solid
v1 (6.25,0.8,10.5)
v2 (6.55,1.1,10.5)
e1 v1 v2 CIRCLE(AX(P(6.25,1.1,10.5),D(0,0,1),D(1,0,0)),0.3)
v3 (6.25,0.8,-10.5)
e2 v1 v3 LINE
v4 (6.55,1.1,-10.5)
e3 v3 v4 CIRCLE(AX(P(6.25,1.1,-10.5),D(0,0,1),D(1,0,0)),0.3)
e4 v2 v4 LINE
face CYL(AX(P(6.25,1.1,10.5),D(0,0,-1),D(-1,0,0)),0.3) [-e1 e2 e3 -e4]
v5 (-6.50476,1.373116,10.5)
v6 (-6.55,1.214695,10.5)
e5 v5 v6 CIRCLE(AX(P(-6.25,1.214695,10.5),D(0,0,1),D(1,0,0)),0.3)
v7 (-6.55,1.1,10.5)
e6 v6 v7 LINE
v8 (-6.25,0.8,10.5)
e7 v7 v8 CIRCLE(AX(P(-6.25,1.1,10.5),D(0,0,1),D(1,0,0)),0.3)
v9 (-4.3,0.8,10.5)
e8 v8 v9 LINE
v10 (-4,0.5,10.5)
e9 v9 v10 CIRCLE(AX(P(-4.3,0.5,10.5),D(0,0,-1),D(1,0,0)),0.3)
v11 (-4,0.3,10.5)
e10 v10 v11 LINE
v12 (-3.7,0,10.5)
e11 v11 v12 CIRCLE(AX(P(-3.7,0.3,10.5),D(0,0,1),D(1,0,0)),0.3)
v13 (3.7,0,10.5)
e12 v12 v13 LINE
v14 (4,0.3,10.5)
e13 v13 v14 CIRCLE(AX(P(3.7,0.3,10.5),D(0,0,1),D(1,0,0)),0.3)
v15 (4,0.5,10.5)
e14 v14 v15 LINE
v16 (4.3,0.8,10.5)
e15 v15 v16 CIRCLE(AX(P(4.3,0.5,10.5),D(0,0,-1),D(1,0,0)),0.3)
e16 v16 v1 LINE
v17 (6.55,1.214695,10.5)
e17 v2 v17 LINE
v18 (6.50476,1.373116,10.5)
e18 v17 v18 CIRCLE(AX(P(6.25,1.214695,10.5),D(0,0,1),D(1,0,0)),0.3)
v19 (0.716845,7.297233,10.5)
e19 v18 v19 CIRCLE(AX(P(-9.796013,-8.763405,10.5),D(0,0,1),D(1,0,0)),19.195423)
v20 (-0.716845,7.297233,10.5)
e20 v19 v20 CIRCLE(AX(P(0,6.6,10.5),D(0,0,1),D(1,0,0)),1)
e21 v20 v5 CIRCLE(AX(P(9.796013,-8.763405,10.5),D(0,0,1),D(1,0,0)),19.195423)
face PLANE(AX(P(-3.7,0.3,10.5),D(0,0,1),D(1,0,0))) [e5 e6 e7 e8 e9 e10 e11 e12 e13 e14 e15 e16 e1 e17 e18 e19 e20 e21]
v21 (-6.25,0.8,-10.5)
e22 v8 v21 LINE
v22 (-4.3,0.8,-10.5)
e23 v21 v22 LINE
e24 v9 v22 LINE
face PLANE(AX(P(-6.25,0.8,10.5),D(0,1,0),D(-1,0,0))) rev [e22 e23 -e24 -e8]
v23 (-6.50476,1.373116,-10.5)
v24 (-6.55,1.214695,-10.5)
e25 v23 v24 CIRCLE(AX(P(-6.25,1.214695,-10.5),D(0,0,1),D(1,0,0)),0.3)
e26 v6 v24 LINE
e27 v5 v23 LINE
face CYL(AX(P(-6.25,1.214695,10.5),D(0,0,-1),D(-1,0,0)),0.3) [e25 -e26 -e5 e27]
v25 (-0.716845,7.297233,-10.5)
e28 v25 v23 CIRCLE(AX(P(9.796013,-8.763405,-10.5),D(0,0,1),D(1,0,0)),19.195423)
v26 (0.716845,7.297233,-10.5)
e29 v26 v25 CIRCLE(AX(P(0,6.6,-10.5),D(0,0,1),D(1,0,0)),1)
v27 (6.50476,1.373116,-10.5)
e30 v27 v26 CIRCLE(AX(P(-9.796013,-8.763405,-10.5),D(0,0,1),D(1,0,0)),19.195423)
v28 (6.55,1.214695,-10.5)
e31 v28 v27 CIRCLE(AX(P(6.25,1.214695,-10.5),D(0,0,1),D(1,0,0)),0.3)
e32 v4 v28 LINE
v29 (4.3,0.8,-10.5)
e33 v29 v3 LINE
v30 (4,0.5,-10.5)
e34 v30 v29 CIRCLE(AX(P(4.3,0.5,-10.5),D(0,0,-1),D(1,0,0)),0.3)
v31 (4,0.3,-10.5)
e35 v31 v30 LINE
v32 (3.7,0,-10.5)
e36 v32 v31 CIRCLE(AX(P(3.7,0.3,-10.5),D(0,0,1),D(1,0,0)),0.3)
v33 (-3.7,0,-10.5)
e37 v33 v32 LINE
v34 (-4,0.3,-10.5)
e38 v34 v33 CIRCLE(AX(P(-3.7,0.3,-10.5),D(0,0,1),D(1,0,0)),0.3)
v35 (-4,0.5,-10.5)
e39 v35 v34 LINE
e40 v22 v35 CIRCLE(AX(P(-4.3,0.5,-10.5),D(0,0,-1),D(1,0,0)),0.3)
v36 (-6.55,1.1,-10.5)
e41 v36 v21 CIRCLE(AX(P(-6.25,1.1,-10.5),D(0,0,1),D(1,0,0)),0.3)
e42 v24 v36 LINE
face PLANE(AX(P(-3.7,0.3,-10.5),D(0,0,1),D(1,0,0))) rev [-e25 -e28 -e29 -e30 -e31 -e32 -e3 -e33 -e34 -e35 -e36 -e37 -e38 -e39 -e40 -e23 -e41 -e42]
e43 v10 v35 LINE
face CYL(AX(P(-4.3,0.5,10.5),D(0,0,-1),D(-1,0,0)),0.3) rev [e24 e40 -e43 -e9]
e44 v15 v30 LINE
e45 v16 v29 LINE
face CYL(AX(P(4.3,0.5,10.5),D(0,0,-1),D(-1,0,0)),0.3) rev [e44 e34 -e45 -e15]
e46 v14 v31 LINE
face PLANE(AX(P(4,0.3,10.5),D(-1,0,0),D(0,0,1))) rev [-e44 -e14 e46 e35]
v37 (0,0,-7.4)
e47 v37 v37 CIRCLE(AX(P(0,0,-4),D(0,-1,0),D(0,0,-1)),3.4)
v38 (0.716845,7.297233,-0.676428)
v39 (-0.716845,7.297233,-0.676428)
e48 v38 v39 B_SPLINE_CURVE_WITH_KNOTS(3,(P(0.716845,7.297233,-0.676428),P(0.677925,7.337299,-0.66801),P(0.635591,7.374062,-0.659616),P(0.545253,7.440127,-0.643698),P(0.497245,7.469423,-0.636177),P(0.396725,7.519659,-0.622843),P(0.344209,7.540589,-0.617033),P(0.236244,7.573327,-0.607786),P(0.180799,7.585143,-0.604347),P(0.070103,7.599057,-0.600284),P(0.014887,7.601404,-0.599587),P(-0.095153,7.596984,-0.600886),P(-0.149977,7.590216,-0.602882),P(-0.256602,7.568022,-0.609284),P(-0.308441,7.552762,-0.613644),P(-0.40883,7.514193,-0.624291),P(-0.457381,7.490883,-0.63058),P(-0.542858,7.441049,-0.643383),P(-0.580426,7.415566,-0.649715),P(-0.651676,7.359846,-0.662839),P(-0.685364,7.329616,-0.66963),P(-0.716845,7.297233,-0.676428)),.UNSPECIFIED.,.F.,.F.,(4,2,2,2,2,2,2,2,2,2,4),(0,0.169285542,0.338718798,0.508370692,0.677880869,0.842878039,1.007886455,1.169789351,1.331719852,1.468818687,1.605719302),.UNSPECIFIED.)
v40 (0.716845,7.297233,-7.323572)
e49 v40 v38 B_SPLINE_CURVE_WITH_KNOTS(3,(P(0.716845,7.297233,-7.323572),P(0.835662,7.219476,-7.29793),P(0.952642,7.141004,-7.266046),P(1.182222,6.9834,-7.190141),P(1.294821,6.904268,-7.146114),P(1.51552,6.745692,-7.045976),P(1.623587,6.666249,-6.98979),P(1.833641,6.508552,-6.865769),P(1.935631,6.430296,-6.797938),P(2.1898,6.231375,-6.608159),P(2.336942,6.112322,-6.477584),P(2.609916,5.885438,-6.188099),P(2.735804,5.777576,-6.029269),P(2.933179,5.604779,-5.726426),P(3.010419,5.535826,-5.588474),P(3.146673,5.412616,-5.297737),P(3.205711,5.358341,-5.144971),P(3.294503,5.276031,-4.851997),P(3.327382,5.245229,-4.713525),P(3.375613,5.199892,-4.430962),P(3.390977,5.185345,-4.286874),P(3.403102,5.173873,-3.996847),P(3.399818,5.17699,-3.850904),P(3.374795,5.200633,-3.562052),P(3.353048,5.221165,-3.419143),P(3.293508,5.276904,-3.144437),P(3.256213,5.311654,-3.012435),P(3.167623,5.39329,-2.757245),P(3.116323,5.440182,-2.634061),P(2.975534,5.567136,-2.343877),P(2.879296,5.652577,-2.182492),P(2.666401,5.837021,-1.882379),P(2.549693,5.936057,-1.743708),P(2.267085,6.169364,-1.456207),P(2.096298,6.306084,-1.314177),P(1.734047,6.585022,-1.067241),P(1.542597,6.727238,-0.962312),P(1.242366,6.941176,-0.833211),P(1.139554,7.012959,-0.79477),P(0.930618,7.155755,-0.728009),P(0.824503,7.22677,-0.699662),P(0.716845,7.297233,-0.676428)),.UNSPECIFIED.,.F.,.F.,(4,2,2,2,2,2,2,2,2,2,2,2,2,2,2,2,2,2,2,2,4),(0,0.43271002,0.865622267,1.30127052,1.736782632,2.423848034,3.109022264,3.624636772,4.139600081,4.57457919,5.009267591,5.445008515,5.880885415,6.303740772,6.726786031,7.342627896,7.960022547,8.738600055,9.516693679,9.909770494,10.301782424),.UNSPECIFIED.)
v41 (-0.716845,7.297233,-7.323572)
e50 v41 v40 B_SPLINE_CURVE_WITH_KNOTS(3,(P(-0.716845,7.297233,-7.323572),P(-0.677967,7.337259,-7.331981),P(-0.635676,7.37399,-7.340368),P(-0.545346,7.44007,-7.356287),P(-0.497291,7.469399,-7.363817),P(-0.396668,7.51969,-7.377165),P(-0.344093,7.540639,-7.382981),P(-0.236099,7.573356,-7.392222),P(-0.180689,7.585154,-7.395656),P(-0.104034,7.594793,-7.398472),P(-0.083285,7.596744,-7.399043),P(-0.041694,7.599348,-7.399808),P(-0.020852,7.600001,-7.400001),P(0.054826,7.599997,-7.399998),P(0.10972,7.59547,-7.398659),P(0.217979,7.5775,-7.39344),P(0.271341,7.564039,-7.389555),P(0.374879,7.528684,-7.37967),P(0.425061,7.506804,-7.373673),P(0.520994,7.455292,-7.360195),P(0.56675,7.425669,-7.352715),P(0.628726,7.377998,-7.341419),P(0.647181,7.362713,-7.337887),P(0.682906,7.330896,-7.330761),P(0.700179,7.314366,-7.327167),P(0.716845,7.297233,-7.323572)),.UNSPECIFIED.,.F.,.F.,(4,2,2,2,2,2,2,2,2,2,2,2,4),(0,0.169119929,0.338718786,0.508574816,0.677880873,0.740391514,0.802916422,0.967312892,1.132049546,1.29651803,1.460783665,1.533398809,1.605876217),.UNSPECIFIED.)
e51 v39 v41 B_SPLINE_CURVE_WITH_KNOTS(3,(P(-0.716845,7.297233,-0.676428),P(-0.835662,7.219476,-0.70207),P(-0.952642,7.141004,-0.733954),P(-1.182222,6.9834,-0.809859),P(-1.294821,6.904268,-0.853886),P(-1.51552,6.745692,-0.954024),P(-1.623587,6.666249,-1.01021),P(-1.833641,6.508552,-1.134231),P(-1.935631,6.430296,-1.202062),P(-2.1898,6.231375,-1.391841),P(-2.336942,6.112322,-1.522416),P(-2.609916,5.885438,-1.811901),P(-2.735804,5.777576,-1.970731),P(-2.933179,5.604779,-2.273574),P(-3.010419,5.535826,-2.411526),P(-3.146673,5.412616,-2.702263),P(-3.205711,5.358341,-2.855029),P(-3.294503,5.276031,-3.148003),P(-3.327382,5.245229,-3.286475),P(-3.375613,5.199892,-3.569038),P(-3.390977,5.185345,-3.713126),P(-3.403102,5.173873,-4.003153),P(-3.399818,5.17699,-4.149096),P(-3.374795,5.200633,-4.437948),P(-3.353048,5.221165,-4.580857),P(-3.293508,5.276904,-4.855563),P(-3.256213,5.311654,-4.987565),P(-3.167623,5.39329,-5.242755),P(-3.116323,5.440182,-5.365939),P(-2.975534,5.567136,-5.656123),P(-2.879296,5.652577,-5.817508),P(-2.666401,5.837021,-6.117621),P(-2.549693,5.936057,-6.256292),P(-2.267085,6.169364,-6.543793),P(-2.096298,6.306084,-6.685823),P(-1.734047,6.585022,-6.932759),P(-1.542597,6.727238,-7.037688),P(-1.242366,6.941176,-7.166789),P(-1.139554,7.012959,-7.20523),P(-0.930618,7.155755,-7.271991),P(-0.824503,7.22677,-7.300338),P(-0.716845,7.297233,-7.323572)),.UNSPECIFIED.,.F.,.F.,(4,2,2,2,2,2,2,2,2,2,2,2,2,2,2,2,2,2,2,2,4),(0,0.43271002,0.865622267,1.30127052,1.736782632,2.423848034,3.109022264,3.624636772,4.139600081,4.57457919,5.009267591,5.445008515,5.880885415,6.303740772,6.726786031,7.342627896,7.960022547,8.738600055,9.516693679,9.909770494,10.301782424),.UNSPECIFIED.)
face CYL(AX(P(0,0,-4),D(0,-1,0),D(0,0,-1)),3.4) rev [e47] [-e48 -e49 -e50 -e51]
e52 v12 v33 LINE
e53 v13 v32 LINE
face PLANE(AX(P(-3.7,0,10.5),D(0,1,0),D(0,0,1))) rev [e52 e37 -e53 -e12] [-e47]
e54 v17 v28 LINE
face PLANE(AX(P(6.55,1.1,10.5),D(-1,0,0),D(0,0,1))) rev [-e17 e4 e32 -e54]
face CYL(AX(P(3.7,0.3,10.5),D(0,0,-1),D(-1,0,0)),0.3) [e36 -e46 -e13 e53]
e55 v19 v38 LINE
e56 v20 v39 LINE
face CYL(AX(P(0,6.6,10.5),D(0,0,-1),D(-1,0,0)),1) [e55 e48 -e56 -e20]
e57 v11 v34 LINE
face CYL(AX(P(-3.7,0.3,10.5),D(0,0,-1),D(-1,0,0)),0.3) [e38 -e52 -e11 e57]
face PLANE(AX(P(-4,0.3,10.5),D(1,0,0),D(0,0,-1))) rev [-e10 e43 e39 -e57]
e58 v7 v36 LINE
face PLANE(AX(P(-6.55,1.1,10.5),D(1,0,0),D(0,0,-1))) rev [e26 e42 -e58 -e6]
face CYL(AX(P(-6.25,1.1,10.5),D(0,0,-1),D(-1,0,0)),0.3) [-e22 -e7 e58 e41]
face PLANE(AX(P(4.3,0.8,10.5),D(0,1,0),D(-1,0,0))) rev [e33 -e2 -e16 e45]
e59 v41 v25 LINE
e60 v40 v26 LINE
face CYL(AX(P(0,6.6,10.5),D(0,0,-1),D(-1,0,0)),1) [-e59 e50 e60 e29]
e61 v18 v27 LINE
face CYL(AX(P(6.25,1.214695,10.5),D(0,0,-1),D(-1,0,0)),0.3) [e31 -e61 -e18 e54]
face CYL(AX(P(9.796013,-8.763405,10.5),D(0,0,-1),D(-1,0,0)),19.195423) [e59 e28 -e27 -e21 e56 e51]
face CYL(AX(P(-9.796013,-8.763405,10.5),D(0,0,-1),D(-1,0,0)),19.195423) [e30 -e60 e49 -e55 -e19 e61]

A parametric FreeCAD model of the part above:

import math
import FreeCAD as App
import Part
import Sketcher

doc = App.newDocument("Part")
params = doc.addObject("Spreadsheet::Sheet", "Params")
for row, (alias, value) in enumerate([
    ("sketch1_radius", "1 mm"),
    ("sketch1_radius2", "0.3 mm"),
    ("sketch1_width", "7.4 mm"),
    ("sketch1_height", "0.2 mm"),
    ("sketch1_width2", "1.95 mm"),
    ("pad1_length", "21 mm"),
    ("sketch2_diameter", "6.8 mm"),
    ("hole_diameter", "6.8 mm"),
], start=1):
    params.set(f"A{row}", alias)
    params.set(f"B{row}", "=" + value)
    params.setAlias(f"B{row}", alias)

body = doc.addObject("PartDesign::Body", "Body")

sketch1 = body.newObject("Sketcher::SketchObject", "Sketch")
sketch1.AttachmentSupport = (doc.getObject("XY_Plane"), [""])
sketch1.MapMode = "FlatFace"
sketch1.addGeometry([
    Part.LineSegment(App.Vector(-3.7, 0, 0), App.Vector(3.7, 0, 0)),
    Part.ArcOfCircle(Part.Circle(App.Vector(3.7, 0.3, 0), App.Vector(0, 0, 1), 0.3), math.radians(-90), math.radians(0)),
    Part.LineSegment(App.Vector(4, 0.3, 0), App.Vector(4, 0.5, 0)),
    Part.ArcOfCircle(Part.Circle(App.Vector(4.3, 0.5, 0), App.Vector(0, 0, 1), 0.3), math.radians(90), math.radians(180)),
    Part.LineSegment(App.Vector(4.3, 0.8, 0), App.Vector(6.25, 0.8, 0)),
    Part.ArcOfCircle(Part.Circle(App.Vector(6.25, 1.1, 0), App.Vector(0, 0, 1), 0.3), math.radians(-90), math.radians(0)),
    Part.LineSegment(App.Vector(6.55, 1.1, 0), App.Vector(6.55, 1.21, 0)),
    Part.ArcOfCircle(Part.Circle(App.Vector(6.25, 1.21, 0), App.Vector(0, 0, 1), 0.3), math.radians(0), math.radians(32)),
    Part.ArcOfCircle(Part.Circle(App.Vector(-9.8, -8.76, 0), App.Vector(0, 0, 1), 19.2), math.radians(32), math.radians(57)),
    Part.ArcOfCircle(Part.Circle(App.Vector(0, 6.6, 0), App.Vector(0, 0, 1), 1), math.radians(44), math.radians(136)),
    Part.ArcOfCircle(Part.Circle(App.Vector(9.8, -8.76, 0), App.Vector(0, 0, 1), 19.2), math.radians(123), math.radians(148)),
    Part.ArcOfCircle(Part.Circle(App.Vector(-6.25, 1.21, 0), App.Vector(0, 0, 1), 0.3), math.radians(148), math.radians(180)),
    Part.LineSegment(App.Vector(-6.55, 1.21, 0), App.Vector(-6.55, 1.1, 0)),
    Part.ArcOfCircle(Part.Circle(App.Vector(-6.25, 1.1, 0), App.Vector(0, 0, 1), 0.3), math.radians(-180), math.radians(-90)),
    Part.LineSegment(App.Vector(-6.25, 0.8, 0), App.Vector(-4.3, 0.8, 0)),
    Part.ArcOfCircle(Part.Circle(App.Vector(-4.3, 0.5, 0), App.Vector(0, 0, 1), 0.3), math.radians(0), math.radians(90)),
    Part.LineSegment(App.Vector(-4, 0.5, 0), App.Vector(-4, 0.3, 0)),
    Part.ArcOfCircle(Part.Circle(App.Vector(-3.7, 0.3, 0), App.Vector(0, 0, 1), 0.3), math.radians(-180), math.radians(-90)),
], False)
sketch1.addConstraint([
    Sketcher.Constraint("Tangent", 0, 2, 1, 1),
    Sketcher.Constraint("Tangent", 1, 2, 2, 1),
    Sketcher.Constraint("Tangent", 2, 2, 3, 2),
    Sketcher.Constraint("Tangent", 3, 1, 4, 1),
    Sketcher.Constraint("Tangent", 4, 2, 5, 1),
    Sketcher.Constraint("Tangent", 5, 2, 6, 1),
    Sketcher.Constraint("Tangent", 6, 2, 7, 1),
    Sketcher.Constraint("Tangent", 7, 2, 8, 1),
    Sketcher.Constraint("Coincident", 8, 2, 9, 1),
    Sketcher.Constraint("Coincident", 9, 2, 10, 1),
    Sketcher.Constraint("Tangent", 10, 2, 11, 1),
    Sketcher.Constraint("Tangent", 11, 2, 12, 1),
    Sketcher.Constraint("Tangent", 12, 2, 13, 1),
    Sketcher.Constraint("Tangent", 13, 2, 14, 1),
    Sketcher.Constraint("Tangent", 14, 2, 15, 2),
    Sketcher.Constraint("Tangent", 15, 1, 16, 1),
    Sketcher.Constraint("Tangent", 16, 2, 17, 1),
    Sketcher.Constraint("Tangent", 17, 2, 0, 1),
    Sketcher.Constraint("Horizontal", 0),
    Sketcher.Constraint("Vertical", 2),
    Sketcher.Constraint("Horizontal", 4),
    Sketcher.Constraint("Vertical", 6),
    Sketcher.Constraint("Vertical", 12),
    Sketcher.Constraint("Horizontal", 14),
    Sketcher.Constraint("Vertical", 16),
    Sketcher.Constraint("Equal", 1, 3),
    Sketcher.Constraint("Equal", 3, 5),
    Sketcher.Constraint("Equal", 5, 7),
    Sketcher.Constraint("Equal", 8, 10),
    Sketcher.Constraint("Equal", 7, 11),
    Sketcher.Constraint("Equal", 11, 13),
    Sketcher.Constraint("Equal", 13, 15),
    Sketcher.Constraint("Equal", 15, 17),
    Sketcher.Constraint("Symmetric", 0, 2, 17, 2, -1, 1),
    Sketcher.Constraint("Symmetric", 8, 3, 10, 3, -2),
    Sketcher.Constraint("Symmetric", 5, 3, 13, 3, -2),
    Sketcher.Constraint("PointOnObject", 9, 3, -2),
    Sketcher.Constraint("Radius", 9, 1.0),
    Sketcher.Constraint("Radius", 1, 0.3),
    Sketcher.Constraint("DistanceX", 0, 1, 0, 2, 7.4),
    Sketcher.Constraint("DistanceY", 2, 1, 2, 2, 0.2),
    Sketcher.Constraint("DistanceX", 4, 1, 4, 2, 1.95),
    Sketcher.Constraint("DistanceY", -1, 1, 9, 3, 6.6),
    Sketcher.Constraint("Radius", 8, 19.195423),
    Sketcher.Constraint("DistanceY", 8, 3, 7, 3, 9.978099),
    Sketcher.Constraint("DistanceY", 6, 1, 6, 2, 0.114695),
])
sketch1.setExpression("Constraints[37]", "Params.sketch1_radius")
sketch1.setExpression("Constraints[38]", "Params.sketch1_radius2")
sketch1.setExpression("Constraints[39]", "Params.sketch1_width")
sketch1.setExpression("Constraints[40]", "Params.sketch1_height")
sketch1.setExpression("Constraints[41]", "Params.sketch1_width2")
pad1 = body.newObject("PartDesign::Pad", "Pad")
pad1.Profile = sketch1
pad1.setExpression("Length", "Params.pad1_length")
pad1.Midplane = True

sketch2 = body.newObject("Sketcher::SketchObject", "Sketch001")
sketch2.AttachmentSupport = (doc.getObject("XZ_Plane"), [""])
sketch2.MapMode = "FlatFace"
sketch2.addGeometry(Part.Circle(App.Vector(0, -4, 0), App.Vector(0, 0, 1), 3.4), False)
sketch2.addConstraint([
    Sketcher.Constraint("PointOnObject", 0, 3, -2),
    Sketcher.Constraint("Diameter", 0, 6.8),
    Sketcher.Constraint("DistanceY", 0, 3, -1, 1, 4.0),
])
sketch2.setExpression("Constraints[1]", "Params.sketch2_diameter")
doc.recompute()
hole = body.newObject("PartDesign::Hole", "Hole")
hole.Profile = sketch2
hole.ThreadType = "None"
hole.setExpression("Diameter", "Params.hole_diameter")
hole.DepthType = "ThroughAll"

doc.recompute()
